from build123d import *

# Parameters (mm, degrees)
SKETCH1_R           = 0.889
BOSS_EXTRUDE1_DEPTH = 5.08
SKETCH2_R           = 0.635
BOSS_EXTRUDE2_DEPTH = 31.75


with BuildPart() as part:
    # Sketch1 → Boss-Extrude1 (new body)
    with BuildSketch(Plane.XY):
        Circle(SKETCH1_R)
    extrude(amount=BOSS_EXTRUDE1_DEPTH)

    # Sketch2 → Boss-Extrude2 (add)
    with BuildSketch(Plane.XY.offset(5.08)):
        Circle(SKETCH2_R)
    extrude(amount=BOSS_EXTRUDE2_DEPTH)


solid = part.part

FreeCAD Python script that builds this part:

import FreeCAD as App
import Part
import Sketcher
Q = App.Units.Quantity

doc = App.newDocument("Part")
body = doc.addObject("PartDesign::Body", "Body")

sketch1 = body.newObject("Sketcher::SketchObject", "Sketch")
sketch1.AttachmentSupport = (doc.getObject("XY_Plane"), [""])
sketch1.MapMode = "FlatFace"
sketch1.addGeometry(Part.Circle(App.Vector(0, 0, 0), App.Vector(0, 0, 1), 0.889), False)
sketch1.addConstraint([
    Sketcher.Constraint("Coincident", 0, 3, -1, 1),
    Sketcher.Constraint("Diameter", 0, Q("0.07 in")),
])
pad1 = body.newObject("PartDesign::Pad", "Pad")
pad1.Profile = sketch1
pad1.Length = Q("0.2 in")

sketch2 = body.newObject("Sketcher::SketchObject", "Sketch001")
sketch2.AttachmentSupport = (doc.getObject("XY_Plane"), [""])
sketch2.MapMode = "FlatFace"
sketch2.AttachmentOffset = App.Placement(App.Vector(0, 0, 0.2 * 25.4), App.Rotation())
sketch2.addGeometry(Part.Circle(App.Vector(0, 0, 0), App.Vector(0, 0, 1), 0.635), False)
sketch2.addConstraint([
    Sketcher.Constraint("Coincident", 0, 3, -1, 1),
    Sketcher.Constraint("Diameter", 0, Q("0.05 in")),
])
pad2 = body.newObject("PartDesign::Pad", "Pad001")
pad2.Profile = sketch2
pad2.Length = Q("1.25 in")

doc.recompute()
